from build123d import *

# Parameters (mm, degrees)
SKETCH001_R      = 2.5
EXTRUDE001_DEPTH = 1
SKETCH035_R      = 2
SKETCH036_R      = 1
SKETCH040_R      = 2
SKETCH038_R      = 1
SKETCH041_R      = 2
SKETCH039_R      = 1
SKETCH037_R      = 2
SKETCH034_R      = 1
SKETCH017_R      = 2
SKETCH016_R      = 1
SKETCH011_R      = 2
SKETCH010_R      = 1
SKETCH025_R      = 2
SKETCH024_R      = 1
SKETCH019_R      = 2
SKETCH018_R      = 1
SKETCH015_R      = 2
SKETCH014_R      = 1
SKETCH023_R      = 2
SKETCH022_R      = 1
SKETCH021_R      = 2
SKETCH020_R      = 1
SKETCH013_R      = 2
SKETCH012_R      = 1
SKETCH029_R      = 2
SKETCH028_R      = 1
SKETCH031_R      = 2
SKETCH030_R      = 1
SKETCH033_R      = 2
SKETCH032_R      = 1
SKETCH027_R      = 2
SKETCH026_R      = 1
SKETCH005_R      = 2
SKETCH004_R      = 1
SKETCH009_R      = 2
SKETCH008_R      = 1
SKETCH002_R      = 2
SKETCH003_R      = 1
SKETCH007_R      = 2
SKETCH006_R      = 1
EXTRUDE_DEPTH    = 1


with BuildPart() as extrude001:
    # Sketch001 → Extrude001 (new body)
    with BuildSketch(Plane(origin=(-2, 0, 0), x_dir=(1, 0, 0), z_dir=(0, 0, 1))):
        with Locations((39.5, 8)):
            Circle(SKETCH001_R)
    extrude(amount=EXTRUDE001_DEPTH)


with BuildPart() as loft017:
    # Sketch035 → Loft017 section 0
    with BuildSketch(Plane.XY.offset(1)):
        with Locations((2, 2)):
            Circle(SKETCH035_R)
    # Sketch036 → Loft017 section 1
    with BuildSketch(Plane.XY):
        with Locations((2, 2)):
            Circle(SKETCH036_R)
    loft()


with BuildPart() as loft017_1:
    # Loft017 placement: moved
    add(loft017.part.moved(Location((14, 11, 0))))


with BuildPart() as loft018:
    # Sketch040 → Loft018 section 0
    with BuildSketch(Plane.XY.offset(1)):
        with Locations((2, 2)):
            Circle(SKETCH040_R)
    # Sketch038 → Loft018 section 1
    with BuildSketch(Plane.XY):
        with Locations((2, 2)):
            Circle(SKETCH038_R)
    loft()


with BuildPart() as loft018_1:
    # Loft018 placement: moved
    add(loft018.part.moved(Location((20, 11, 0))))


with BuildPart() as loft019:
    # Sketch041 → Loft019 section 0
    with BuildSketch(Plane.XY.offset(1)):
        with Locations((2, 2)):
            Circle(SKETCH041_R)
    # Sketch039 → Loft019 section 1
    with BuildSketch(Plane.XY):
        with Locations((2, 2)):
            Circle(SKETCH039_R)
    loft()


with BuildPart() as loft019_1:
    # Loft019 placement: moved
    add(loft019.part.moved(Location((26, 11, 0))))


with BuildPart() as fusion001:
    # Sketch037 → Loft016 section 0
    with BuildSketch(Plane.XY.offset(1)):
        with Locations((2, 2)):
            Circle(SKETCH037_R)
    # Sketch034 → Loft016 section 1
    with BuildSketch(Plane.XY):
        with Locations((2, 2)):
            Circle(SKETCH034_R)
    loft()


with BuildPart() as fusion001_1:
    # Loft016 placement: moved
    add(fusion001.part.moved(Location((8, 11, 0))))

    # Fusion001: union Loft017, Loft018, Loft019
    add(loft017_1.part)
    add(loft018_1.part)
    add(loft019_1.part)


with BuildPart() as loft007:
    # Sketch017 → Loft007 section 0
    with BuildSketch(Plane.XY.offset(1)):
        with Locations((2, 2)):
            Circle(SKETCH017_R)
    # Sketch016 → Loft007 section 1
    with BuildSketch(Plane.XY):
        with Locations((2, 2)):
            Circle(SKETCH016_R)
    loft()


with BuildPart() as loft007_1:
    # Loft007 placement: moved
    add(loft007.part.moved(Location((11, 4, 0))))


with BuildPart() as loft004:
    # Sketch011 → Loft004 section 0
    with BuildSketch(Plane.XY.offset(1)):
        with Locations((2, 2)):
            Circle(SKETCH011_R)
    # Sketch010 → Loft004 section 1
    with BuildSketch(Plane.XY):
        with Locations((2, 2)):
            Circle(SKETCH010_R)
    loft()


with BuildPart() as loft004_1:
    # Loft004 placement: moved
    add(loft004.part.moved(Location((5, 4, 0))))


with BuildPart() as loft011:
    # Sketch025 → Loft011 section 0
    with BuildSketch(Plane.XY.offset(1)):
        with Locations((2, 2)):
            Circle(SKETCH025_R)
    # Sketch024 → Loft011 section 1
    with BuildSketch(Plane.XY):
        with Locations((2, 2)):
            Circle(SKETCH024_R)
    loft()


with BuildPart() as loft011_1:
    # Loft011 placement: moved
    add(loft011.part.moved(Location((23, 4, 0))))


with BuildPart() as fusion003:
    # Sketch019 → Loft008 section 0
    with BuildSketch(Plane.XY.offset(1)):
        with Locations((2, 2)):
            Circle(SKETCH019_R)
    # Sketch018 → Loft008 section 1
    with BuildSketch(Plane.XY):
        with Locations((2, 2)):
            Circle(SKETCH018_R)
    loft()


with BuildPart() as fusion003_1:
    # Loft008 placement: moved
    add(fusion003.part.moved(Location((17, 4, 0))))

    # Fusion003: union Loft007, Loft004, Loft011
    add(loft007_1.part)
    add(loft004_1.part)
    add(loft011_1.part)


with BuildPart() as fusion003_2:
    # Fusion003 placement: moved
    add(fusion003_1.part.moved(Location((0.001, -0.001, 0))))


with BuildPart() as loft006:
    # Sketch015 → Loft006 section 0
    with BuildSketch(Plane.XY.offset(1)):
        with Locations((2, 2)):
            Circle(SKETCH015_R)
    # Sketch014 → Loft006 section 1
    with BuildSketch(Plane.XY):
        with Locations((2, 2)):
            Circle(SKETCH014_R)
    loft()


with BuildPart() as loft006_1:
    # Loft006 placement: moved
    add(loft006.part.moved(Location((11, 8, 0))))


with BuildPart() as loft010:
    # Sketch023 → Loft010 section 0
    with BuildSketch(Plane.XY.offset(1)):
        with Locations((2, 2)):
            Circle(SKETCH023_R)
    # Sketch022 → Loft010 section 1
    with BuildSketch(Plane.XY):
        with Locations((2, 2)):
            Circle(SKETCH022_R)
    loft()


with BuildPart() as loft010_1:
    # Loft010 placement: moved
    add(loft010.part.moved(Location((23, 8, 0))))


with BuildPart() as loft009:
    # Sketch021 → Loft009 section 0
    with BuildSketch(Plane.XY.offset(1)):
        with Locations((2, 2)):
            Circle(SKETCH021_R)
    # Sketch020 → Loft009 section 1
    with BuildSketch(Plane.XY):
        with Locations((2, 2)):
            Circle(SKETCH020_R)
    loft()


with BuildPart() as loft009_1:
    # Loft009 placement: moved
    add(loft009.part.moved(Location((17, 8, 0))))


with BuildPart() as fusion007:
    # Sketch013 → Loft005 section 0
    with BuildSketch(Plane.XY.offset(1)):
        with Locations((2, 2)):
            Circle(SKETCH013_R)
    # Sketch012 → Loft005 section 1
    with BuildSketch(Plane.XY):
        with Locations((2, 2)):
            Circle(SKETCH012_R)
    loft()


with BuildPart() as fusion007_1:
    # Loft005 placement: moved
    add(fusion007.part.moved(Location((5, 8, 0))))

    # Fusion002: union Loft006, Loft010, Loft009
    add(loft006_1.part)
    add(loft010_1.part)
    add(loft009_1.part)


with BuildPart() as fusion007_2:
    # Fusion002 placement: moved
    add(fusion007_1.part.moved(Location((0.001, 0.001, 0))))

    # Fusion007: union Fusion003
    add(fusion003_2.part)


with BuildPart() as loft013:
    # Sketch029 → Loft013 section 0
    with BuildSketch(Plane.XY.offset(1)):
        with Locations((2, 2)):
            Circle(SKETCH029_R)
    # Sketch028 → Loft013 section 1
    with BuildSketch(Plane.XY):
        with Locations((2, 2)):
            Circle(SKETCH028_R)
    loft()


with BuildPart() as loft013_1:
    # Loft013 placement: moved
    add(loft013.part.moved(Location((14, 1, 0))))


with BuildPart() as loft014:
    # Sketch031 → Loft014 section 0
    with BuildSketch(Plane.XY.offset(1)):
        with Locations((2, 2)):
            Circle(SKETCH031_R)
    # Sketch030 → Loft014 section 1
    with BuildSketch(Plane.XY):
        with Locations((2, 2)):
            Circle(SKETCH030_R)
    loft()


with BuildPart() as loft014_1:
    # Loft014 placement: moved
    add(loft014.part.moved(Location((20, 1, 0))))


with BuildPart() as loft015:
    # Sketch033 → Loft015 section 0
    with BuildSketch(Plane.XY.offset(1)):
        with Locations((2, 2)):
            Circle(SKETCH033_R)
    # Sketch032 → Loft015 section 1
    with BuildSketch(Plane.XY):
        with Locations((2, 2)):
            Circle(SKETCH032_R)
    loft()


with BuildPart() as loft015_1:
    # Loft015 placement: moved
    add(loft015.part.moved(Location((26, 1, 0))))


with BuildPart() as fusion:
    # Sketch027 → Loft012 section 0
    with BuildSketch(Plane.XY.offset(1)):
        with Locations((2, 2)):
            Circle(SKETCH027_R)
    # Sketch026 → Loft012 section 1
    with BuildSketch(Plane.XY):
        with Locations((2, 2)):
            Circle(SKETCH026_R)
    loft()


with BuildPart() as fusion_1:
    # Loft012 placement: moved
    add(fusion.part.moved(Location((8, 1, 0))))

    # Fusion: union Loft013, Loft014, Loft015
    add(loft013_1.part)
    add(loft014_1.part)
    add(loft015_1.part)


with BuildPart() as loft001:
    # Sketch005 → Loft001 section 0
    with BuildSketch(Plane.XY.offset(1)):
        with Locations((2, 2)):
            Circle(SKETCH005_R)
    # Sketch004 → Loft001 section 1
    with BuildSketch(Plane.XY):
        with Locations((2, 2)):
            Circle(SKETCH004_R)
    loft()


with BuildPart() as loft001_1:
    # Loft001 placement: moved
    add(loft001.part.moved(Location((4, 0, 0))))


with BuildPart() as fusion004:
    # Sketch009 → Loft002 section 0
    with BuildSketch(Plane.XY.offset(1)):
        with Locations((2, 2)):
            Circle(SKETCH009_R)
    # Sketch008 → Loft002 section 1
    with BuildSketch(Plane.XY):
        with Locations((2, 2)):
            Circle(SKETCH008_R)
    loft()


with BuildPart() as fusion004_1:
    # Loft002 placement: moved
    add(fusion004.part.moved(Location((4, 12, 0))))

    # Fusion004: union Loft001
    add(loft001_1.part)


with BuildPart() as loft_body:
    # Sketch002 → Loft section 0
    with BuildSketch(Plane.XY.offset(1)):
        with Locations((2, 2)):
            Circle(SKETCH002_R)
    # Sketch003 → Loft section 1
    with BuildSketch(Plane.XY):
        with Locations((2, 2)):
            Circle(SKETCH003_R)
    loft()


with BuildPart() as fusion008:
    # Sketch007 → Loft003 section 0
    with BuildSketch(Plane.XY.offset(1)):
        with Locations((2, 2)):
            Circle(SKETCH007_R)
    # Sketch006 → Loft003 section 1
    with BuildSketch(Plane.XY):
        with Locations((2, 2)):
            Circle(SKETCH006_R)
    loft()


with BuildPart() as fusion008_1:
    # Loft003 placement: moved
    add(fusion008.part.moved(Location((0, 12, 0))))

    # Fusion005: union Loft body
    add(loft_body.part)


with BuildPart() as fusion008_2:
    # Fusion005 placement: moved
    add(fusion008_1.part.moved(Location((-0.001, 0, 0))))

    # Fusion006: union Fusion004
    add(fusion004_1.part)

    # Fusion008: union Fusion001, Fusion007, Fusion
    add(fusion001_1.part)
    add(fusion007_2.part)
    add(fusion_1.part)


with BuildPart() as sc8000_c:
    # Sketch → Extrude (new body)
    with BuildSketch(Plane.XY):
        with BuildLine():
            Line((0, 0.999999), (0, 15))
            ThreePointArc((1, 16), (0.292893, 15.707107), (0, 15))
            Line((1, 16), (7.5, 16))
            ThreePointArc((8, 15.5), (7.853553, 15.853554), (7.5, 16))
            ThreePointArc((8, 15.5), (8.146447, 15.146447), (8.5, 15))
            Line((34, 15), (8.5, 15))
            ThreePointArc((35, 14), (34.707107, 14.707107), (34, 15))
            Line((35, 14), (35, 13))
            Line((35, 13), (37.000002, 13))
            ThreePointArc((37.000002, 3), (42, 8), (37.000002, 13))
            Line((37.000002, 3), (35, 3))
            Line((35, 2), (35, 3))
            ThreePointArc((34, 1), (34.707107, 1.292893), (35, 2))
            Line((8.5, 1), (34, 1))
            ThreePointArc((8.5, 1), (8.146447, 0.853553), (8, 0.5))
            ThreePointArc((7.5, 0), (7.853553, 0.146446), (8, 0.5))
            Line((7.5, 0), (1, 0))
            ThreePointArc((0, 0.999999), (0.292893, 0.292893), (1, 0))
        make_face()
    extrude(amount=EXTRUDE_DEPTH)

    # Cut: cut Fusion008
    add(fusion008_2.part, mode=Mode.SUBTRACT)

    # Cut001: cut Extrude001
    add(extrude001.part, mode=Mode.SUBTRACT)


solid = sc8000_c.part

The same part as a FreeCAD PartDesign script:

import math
import FreeCAD as App
import Part
import Sketcher

V = App.Vector

doc = App.newDocument("Part")
params = doc.addObject("Spreadsheet::Sheet", "Params")
for row, (alias, value) in enumerate([
    ("sketch1_diameter", "5 mm"),
    ("pad1_length", "1 mm"),
    ("sketch2_diameter", "4 mm"),
    ("sketch3_diameter", "2 mm"),
    ("sketch4_diameter", "4 mm"),
    ("sketch5_diameter", "2 mm"),
    ("sketch6_diameter", "4 mm"),
    ("sketch7_diameter", "2 mm"),
    ("sketch8_diameter", "4 mm"),
    ("sketch9_diameter", "2 mm"),
    ("sketch10_diameter", "4 mm"),
    ("sketch11_diameter", "2 mm"),
    ("sketch12_diameter", "4 mm"),
    ("sketch13_diameter", "2 mm"),
    ("sketch14_diameter", "4 mm"),
    ("sketch15_diameter", "2 mm"),
    ("sketch16_diameter", "4 mm"),
    ("sketch17_diameter", "2 mm"),
    ("sketch18_diameter", "4 mm"),
    ("sketch19_diameter", "2 mm"),
    ("sketch20_diameter", "4 mm"),
    ("sketch21_diameter", "2 mm"),
    ("sketch22_diameter", "4 mm"),
    ("sketch23_diameter", "2 mm"),
    ("sketch24_diameter", "4 mm"),
    ("sketch25_diameter", "2 mm"),
    ("sketch26_diameter", "4 mm"),
    ("sketch27_diameter", "2 mm"),
    ("sketch28_diameter", "4 mm"),
    ("sketch29_diameter", "2 mm"),
    ("sketch30_diameter", "4 mm"),
    ("sketch31_diameter", "2 mm"),
    ("sketch32_diameter", "4 mm"),
    ("sketch33_diameter", "2 mm"),
    ("sketch34_diameter", "4 mm"),
    ("sketch35_diameter", "2 mm"),
    ("sketch36_diameter", "4 mm"),
    ("sketch37_diameter", "2 mm"),
    ("sketch38_diameter", "4 mm"),
    ("sketch39_diameter", "2 mm"),
    ("sketch40_diameter", "4 mm"),
    ("sketch41_diameter", "2 mm"),
    ("sketch42_radius", "0.999999 mm"),
    ("sketch42_radius2", "5 mm"),
    ("sketch42_height", "14.000001 mm"),
    ("sketch42_width", "6.5 mm"),
    ("sketch42_width2", "25.5 mm"),
    ("pad2_length", "1 mm"),
], start=1):
    params.set(f"A{row}", alias)
    params.set(f"B{row}", "=" + value)
    params.setAlias(f"B{row}", alias)

body = doc.addObject("PartDesign::Body", "Body")

sketch1 = body.newObject("Sketcher::SketchObject", "Sketch")
sketch1.AttachmentSupport = (doc.getObject("XY_Plane"), [""])
sketch1.MapMode = "FlatFace"
sketch1.addGeometry(Part.Circle(V(37.5, 8, 0), V(0, 0, 1), 2.5), False)
sketch1.addConstraint([
    Sketcher.Constraint("Diameter", 0, 5.0),
    Sketcher.Constraint("DistanceY", -1, 1, 0, 3, 8.0),
    Sketcher.Constraint("DistanceX", -1, 1, 0, 3, 37.5),
])
sketch1.setExpression("Constraints[0]", "Params.sketch1_diameter")
pad1 = body.newObject("PartDesign::Pad", "Pad")
pad1.Profile = sketch1
pad1.setExpression("Length", "Params.pad1_length")
body2 = doc.addObject("PartDesign::Body", "Body001")

sketch2 = body2.newObject("Sketcher::SketchObject", "Sketch001")
sketch2.AttachmentSupport = (doc.getObject("XY_Plane001"), [""])
sketch2.MapMode = "FlatFace"
sketch2.AttachmentOffset = App.Placement(V(0, 0, 1), App.Rotation())
sketch2.addGeometry(Part.Circle(V(2, 2, 0), V(0, 0, 1), 2), False)
sketch2.addConstraint([
    Sketcher.Constraint("Diameter", 0, 4.0),
    Sketcher.Constraint("DistanceX", -1, 1, 0, 3, 2.0),
    Sketcher.Constraint("DistanceY", -1, 1, 0, 3, 2.0),
])
sketch2.setExpression("Constraints[0]", "Params.sketch2_diameter")

sketch3 = body2.newObject("Sketcher::SketchObject", "Sketch002")
sketch3.AttachmentSupport = (doc.getObject("XY_Plane001"), [""])
sketch3.MapMode = "FlatFace"
sketch3.addGeometry(Part.Circle(V(2, 2, 0), V(0, 0, 1), 1), False)
sketch3.addConstraint([
    Sketcher.Constraint("Diameter", 0, 2.0),
    Sketcher.Constraint("DistanceX", -1, 1, 0, 3, 2.0),
    Sketcher.Constraint("DistanceY", -1, 1, 0, 3, 2.0),
])
sketch3.setExpression("Constraints[0]", "Params.sketch3_diameter")

additiveloft = body2.newObject("PartDesign::AdditiveLoft", "AdditiveLoft")
additiveloft.Profile = sketch2
additiveloft.Sections = [sketch3]
body3 = doc.addObject("PartDesign::Body", "Body002")
doc.recompute()

body2.Placement = App.Placement(V(14, 11, 0), App.Rotation(V(0, 0, 1), 0))
boolean = body3.newObject("PartDesign::Boolean", "Boolean")
boolean.Type = "Fuse"
boolean.addObjects([body2])
body4 = doc.addObject("PartDesign::Body", "Body003")

sketch4 = body4.newObject("Sketcher::SketchObject", "Sketch003")
sketch4.AttachmentSupport = (doc.getObject("XY_Plane003"), [""])
sketch4.MapMode = "FlatFace"
sketch4.AttachmentOffset = App.Placement(V(0, 0, 1), App.Rotation())
sketch4.addGeometry(Part.Circle(V(2, 2, 0), V(0, 0, 1), 2), False)
sketch4.addConstraint([
    Sketcher.Constraint("Diameter", 0, 4.0),
    Sketcher.Constraint("DistanceX", -1, 1, 0, 3, 2.0),
    Sketcher.Constraint("DistanceY", -1, 1, 0, 3, 2.0),
])
sketch4.setExpression("Constraints[0]", "Params.sketch4_diameter")

sketch5 = body4.newObject("Sketcher::SketchObject", "Sketch004")
sketch5.AttachmentSupport = (doc.getObject("XY_Plane003"), [""])
sketch5.MapMode = "FlatFace"
sketch5.addGeometry(Part.Circle(V(2, 2, 0), V(0, 0, 1), 1), False)
sketch5.addConstraint([
    Sketcher.Constraint("Diameter", 0, 2.0),
    Sketcher.Constraint("DistanceX", -1, 1, 0, 3, 2.0),
    Sketcher.Constraint("DistanceY", -1, 1, 0, 3, 2.0),
])
sketch5.setExpression("Constraints[0]", "Params.sketch5_diameter")

additiveloft2 = body4.newObject("PartDesign::AdditiveLoft", "AdditiveLoft001")
additiveloft2.Profile = sketch4
additiveloft2.Sections = [sketch5]
body5 = doc.addObject("PartDesign::Body", "Body004")
doc.recompute()

body4.Placement = App.Placement(V(20, 11, 0), App.Rotation(V(0, 0, 1), 0))
boolean2 = body5.newObject("PartDesign::Boolean", "Boolean001")
boolean2.Type = "Fuse"
boolean2.addObjects([body4])
body6 = doc.addObject("PartDesign::Body", "Body005")

sketch6 = body6.newObject("Sketcher::SketchObject", "Sketch005")
sketch6.AttachmentSupport = (doc.getObject("XY_Plane005"), [""])
sketch6.MapMode = "FlatFace"
sketch6.AttachmentOffset = App.Placement(V(0, 0, 1), App.Rotation())
sketch6.addGeometry(Part.Circle(V(2, 2, 0), V(0, 0, 1), 2), False)
sketch6.addConstraint([
    Sketcher.Constraint("Diameter", 0, 4.0),
    Sketcher.Constraint("DistanceX", -1, 1, 0, 3, 2.0),
    Sketcher.Constraint("DistanceY", -1, 1, 0, 3, 2.0),
])
sketch6.setExpression("Constraints[0]", "Params.sketch6_diameter")

sketch7 = body6.newObject("Sketcher::SketchObject", "Sketch006")
sketch7.AttachmentSupport = (doc.getObject("XY_Plane005"), [""])
sketch7.MapMode = "FlatFace"
sketch7.addGeometry(Part.Circle(V(2, 2, 0), V(0, 0, 1), 1), False)
sketch7.addConstraint([
    Sketcher.Constraint("Diameter", 0, 2.0),
    Sketcher.Constraint("DistanceX", -1, 1, 0, 3, 2.0),
    Sketcher.Constraint("DistanceY", -1, 1, 0, 3, 2.0),
])
sketch7.setExpression("Constraints[0]", "Params.sketch7_diameter")

additiveloft3 = body6.newObject("PartDesign::AdditiveLoft", "AdditiveLoft002")
additiveloft3.Profile = sketch6
additiveloft3.Sections = [sketch7]
body7 = doc.addObject("PartDesign::Body", "Body006")
doc.recompute()

body6.Placement = App.Placement(V(26, 11, 0), App.Rotation(V(0, 0, 1), 0))
boolean3 = body7.newObject("PartDesign::Boolean", "Boolean002")
boolean3.Type = "Fuse"
boolean3.addObjects([body6])
body8 = doc.addObject("PartDesign::Body", "Body007")

sketch8 = body8.newObject("Sketcher::SketchObject", "Sketch007")
sketch8.AttachmentSupport = (doc.getObject("XY_Plane007"), [""])
sketch8.MapMode = "FlatFace"
sketch8.AttachmentOffset = App.Placement(V(0, 0, 1), App.Rotation())
sketch8.addGeometry(Part.Circle(V(2, 2, 0), V(0, 0, 1), 2), False)
sketch8.addConstraint([
    Sketcher.Constraint("Diameter", 0, 4.0),
    Sketcher.Constraint("DistanceX", -1, 1, 0, 3, 2.0),
    Sketcher.Constraint("DistanceY", -1, 1, 0, 3, 2.0),
])
sketch8.setExpression("Constraints[0]", "Params.sketch8_diameter")

sketch9 = body8.newObject("Sketcher::SketchObject", "Sketch008")
sketch9.AttachmentSupport = (doc.getObject("XY_Plane007"), [""])
sketch9.MapMode = "FlatFace"
sketch9.addGeometry(Part.Circle(V(2, 2, 0), V(0, 0, 1), 1), False)
sketch9.addConstraint([
    Sketcher.Constraint("Diameter", 0, 2.0),
    Sketcher.Constraint("DistanceX", -1, 1, 0, 3, 2.0),
    Sketcher.Constraint("DistanceY", -1, 1, 0, 3, 2.0),
])
sketch9.setExpression("Constraints[0]", "Params.sketch9_diameter")

additiveloft4 = body8.newObject("PartDesign::AdditiveLoft", "AdditiveLoft003")
additiveloft4.Profile = sketch8
additiveloft4.Sections = [sketch9]
body9 = doc.addObject("PartDesign::Body", "Body008")
body9.AllowCompound = True
doc.recompute()

body8.Placement = App.Placement(V(8, 11, 0), App.Rotation(V(0, 0, 1), 0))
boolean4 = body9.newObject("PartDesign::Boolean", "Boolean003")
boolean4.Type = "Fuse"
boolean4.addObjects([body8])
doc.recompute()

boolean5 = body9.newObject("PartDesign::Boolean", "Boolean004")
boolean5.Type = "Fuse"
boolean5.addObjects([body3])
doc.recompute()

boolean6 = body9.newObject("PartDesign::Boolean", "Boolean005")
boolean6.Type = "Fuse"
boolean6.addObjects([body5])
doc.recompute()

boolean7 = body9.newObject("PartDesign::Boolean", "Boolean006")
boolean7.Type = "Fuse"
boolean7.addObjects([body7])
body10 = doc.addObject("PartDesign::Body", "Body009")

sketch10 = body10.newObject("Sketcher::SketchObject", "Sketch009")
sketch10.AttachmentSupport = (doc.getObject("XY_Plane009"), [""])
sketch10.MapMode = "FlatFace"
sketch10.AttachmentOffset = App.Placement(V(0, 0, 1), App.Rotation())
sketch10.addGeometry(Part.Circle(V(2, 2, 0), V(0, 0, 1), 2), False)
sketch10.addConstraint([
    Sketcher.Constraint("Diameter", 0, 4.0),
    Sketcher.Constraint("DistanceX", -1, 1, 0, 3, 2.0),
    Sketcher.Constraint("DistanceY", -1, 1, 0, 3, 2.0),
])
sketch10.setExpression("Constraints[0]", "Params.sketch10_diameter")

sketch11 = body10.newObject("Sketcher::SketchObject", "Sketch010")
sketch11.AttachmentSupport = (doc.getObject("XY_Plane009"), [""])
sketch11.MapMode = "FlatFace"
sketch11.addGeometry(Part.Circle(V(2, 2, 0), V(0, 0, 1), 1), False)
sketch11.addConstraint([
    Sketcher.Constraint("Diameter", 0, 2.0),
    Sketcher.Constraint("DistanceX", -1, 1, 0, 3, 2.0),
    Sketcher.Constraint("DistanceY", -1, 1, 0, 3, 2.0),
])
sketch11.setExpression("Constraints[0]", "Params.sketch11_diameter")

additiveloft5 = body10.newObject("PartDesign::AdditiveLoft", "AdditiveLoft004")
additiveloft5.Profile = sketch10
additiveloft5.Sections = [sketch11]
body11 = doc.addObject("PartDesign::Body", "Body010")
doc.recompute()

body10.Placement = App.Placement(V(11, 4, 0), App.Rotation(V(0, 0, 1), 0))
boolean8 = body11.newObject("PartDesign::Boolean", "Boolean007")
boolean8.Type = "Fuse"
boolean8.addObjects([body10])
body12 = doc.addObject("PartDesign::Body", "Body011")

sketch12 = body12.newObject("Sketcher::SketchObject", "Sketch011")
sketch12.AttachmentSupport = (doc.getObject("XY_Plane011"), [""])
sketch12.MapMode = "FlatFace"
sketch12.AttachmentOffset = App.Placement(V(0, 0, 1), App.Rotation())
sketch12.addGeometry(Part.Circle(V(2, 2, 0), V(0, 0, 1), 2), False)
sketch12.addConstraint([
    Sketcher.Constraint("Diameter", 0, 4.0),
    Sketcher.Constraint("DistanceX", -1, 1, 0, 3, 2.0),
    Sketcher.Constraint("DistanceY", -1, 1, 0, 3, 2.0),
])
sketch12.setExpression("Constraints[0]", "Params.sketch12_diameter")

sketch13 = body12.newObject("Sketcher::SketchObject", "Sketch012")
sketch13.AttachmentSupport = (doc.getObject("XY_Plane011"), [""])
sketch13.MapMode = "FlatFace"
sketch13.addGeometry(Part.Circle(V(2, 2, 0), V(0, 0, 1), 1), False)
sketch13.addConstraint([
    Sketcher.Constraint("Diameter", 0, 2.0),
    Sketcher.Constraint("DistanceX", -1, 1, 0, 3, 2.0),
    Sketcher.Constraint("DistanceY", -1, 1, 0, 3, 2.0),
])
sketch13.setExpression("Constraints[0]", "Params.sketch13_diameter")

additiveloft6 = body12.newObject("PartDesign::AdditiveLoft", "AdditiveLoft005")
additiveloft6.Profile = sketch12
additiveloft6.Sections = [sketch13]
body13 = doc.addObject("PartDesign::Body", "Body012")
doc.recompute()

body12.Placement = App.Placement(V(5, 4, 0), App.Rotation(V(0, 0, 1), 0))
boolean9 = body13.newObject("PartDesign::Boolean", "Boolean008")
boolean9.Type = "Fuse"
boolean9.addObjects([body12])
body14 = doc.addObject("PartDesign::Body", "Body013")

sketch14 = body14.newObject("Sketcher::SketchObject", "Sketch013")
sketch14.AttachmentSupport = (doc.getObject("XY_Plane013"), [""])
sketch14.MapMode = "FlatFace"
sketch14.AttachmentOffset = App.Placement(V(0, 0, 1), App.Rotation())
sketch14.addGeometry(Part.Circle(V(2, 2, 0), V(0, 0, 1), 2), False)
sketch14.addConstraint([
    Sketcher.Constraint("Diameter", 0, 4.0),
    Sketcher.Constraint("DistanceX", -1, 1, 0, 3, 2.0),
    Sketcher.Constraint("DistanceY", -1, 1, 0, 3, 2.0),
])
sketch14.setExpression("Constraints[0]", "Params.sketch14_diameter")

sketch15 = body14.newObject("Sketcher::SketchObject", "Sketch014")
sketch15.AttachmentSupport = (doc.getObject("XY_Plane013"), [""])
sketch15.MapMode = "FlatFace"
sketch15.addGeometry(Part.Circle(V(2, 2, 0), V(0, 0, 1), 1), False)
sketch15.addConstraint([
    Sketcher.Constraint("Diameter", 0, 2.0),
    Sketcher.Constraint("DistanceX", -1, 1, 0, 3, 2.0),
    Sketcher.Constraint("DistanceY", -1, 1, 0, 3, 2.0),
])
sketch15.setExpression("Constraints[0]", "Params.sketch15_diameter")

additiveloft7 = body14.newObject("PartDesign::AdditiveLoft", "AdditiveLoft006")
additiveloft7.Profile = sketch14
additiveloft7.Sections = [sketch15]
body15 = doc.addObject("PartDesign::Body", "Body014")
doc.recompute()

body14.Placement = App.Placement(V(23, 4, 0), App.Rotation(V(0, 0, 1), 0))
boolean10 = body15.newObject("PartDesign::Boolean", "Boolean009")
boolean10.Type = "Fuse"
boolean10.addObjects([body14])
body16 = doc.addObject("PartDesign::Body", "Body015")

sketch16 = body16.newObject("Sketcher::SketchObject", "Sketch015")
sketch16.AttachmentSupport = (doc.getObject("XY_Plane015"), [""])
sketch16.MapMode = "FlatFace"
sketch16.AttachmentOffset = App.Placement(V(0, 0, 1), App.Rotation())
sketch16.addGeometry(Part.Circle(V(2, 2, 0), V(0, 0, 1), 2), False)
sketch16.addConstraint([
    Sketcher.Constraint("Diameter", 0, 4.0),
    Sketcher.Constraint("DistanceX", -1, 1, 0, 3, 2.0),
    Sketcher.Constraint("DistanceY", -1, 1, 0, 3, 2.0),
])
sketch16.setExpression("Constraints[0]", "Params.sketch16_diameter")

sketch17 = body16.newObject("Sketcher::SketchObject", "Sketch016")
sketch17.AttachmentSupport = (doc.getObject("XY_Plane015"), [""])
sketch17.MapMode = "FlatFace"
sketch17.addGeometry(Part.Circle(V(2, 2, 0), V(0, 0, 1), 1), False)
sketch17.addConstraint([
    Sketcher.Constraint("Diameter", 0, 2.0),
    Sketcher.Constraint("DistanceX", -1, 1, 0, 3, 2.0),
    Sketcher.Constraint("DistanceY", -1, 1, 0, 3, 2.0),
])
sketch17.setExpression("Constraints[0]", "Params.sketch17_diameter")

additiveloft8 = body16.newObject("PartDesign::AdditiveLoft", "AdditiveLoft007")
additiveloft8.Profile = sketch16
additiveloft8.Sections = [sketch17]
body17 = doc.addObject("PartDesign::Body", "Body016")
body17.AllowCompound = True
doc.recompute()

body16.Placement = App.Placement(V(17, 4, 0), App.Rotation(V(0, 0, 1), 0))
boolean11 = body17.newObject("PartDesign::Boolean", "Boolean010")
boolean11.Type = "Fuse"
boolean11.addObjects([body16])
doc.recompute()

boolean12 = body17.newObject("PartDesign::Boolean", "Boolean011")
boolean12.Type = "Fuse"
boolean12.addObjects([body11])
doc.recompute()

boolean13 = body17.newObject("PartDesign::Boolean", "Boolean012")
boolean13.Type = "Fuse"
boolean13.addObjects([body13])
doc.recompute()

boolean14 = body17.newObject("PartDesign::Boolean", "Boolean013")
boolean14.Type = "Fuse"
boolean14.addObjects([body15])
body18 = doc.addObject("PartDesign::Body", "Body017")
body18.AllowCompound = True
doc.recompute()

body17.Placement = App.Placement(V(0.001, -0.001, 0), App.Rotation(V(0, 0, 1), 0))
boolean15 = body18.newObject("PartDesign::Boolean", "Boolean014")
boolean15.Type = "Fuse"
boolean15.addObjects([body17])
body19 = doc.addObject("PartDesign::Body", "Body018")

sketch18 = body19.newObject("Sketcher::SketchObject", "Sketch017")
sketch18.AttachmentSupport = (doc.getObject("XY_Plane018"), [""])
sketch18.MapMode = "FlatFace"
sketch18.AttachmentOffset = App.Placement(V(0, 0, 1), App.Rotation())
sketch18.addGeometry(Part.Circle(V(2, 2, 0), V(0, 0, 1), 2), False)
sketch18.addConstraint([
    Sketcher.Constraint("Diameter", 0, 4.0),
    Sketcher.Constraint("DistanceX", -1, 1, 0, 3, 2.0),
    Sketcher.Constraint("DistanceY", -1, 1, 0, 3, 2.0),
])
sketch18.setExpression("Constraints[0]", "Params.sketch18_diameter")

sketch19 = body19.newObject("Sketcher::SketchObject", "Sketch018")
sketch19.AttachmentSupport = (doc.getObject("XY_Plane018"), [""])
sketch19.MapMode = "FlatFace"
sketch19.addGeometry(Part.Circle(V(2, 2, 0), V(0, 0, 1), 1), False)
sketch19.addConstraint([
    Sketcher.Constraint("Diameter", 0, 2.0),
    Sketcher.Constraint("DistanceX", -1, 1, 0, 3, 2.0),
    Sketcher.Constraint("DistanceY", -1, 1, 0, 3, 2.0),
])
sketch19.setExpression("Constraints[0]", "Params.sketch19_diameter")

additiveloft9 = body19.newObject("PartDesign::AdditiveLoft", "AdditiveLoft008")
additiveloft9.Profile = sketch18
additiveloft9.Sections = [sketch19]
body20 = doc.addObject("PartDesign::Body", "Body019")
doc.recompute()

body19.Placement = App.Placement(V(11, 8, 0), App.Rotation(V(0, 0, 1), 0))
boolean16 = body20.newObject("PartDesign::Boolean", "Boolean015")
boolean16.Type = "Fuse"
boolean16.addObjects([body19])
body21 = doc.addObject("PartDesign::Body", "Body020")

sketch20 = body21.newObject("Sketcher::SketchObject", "Sketch019")
sketch20.AttachmentSupport = (doc.getObject("XY_Plane020"), [""])
sketch20.MapMode = "FlatFace"
sketch20.AttachmentOffset = App.Placement(V(0, 0, 1), App.Rotation())
sketch20.addGeometry(Part.Circle(V(2, 2, 0), V(0, 0, 1), 2), False)
sketch20.addConstraint([
    Sketcher.Constraint("Diameter", 0, 4.0),
    Sketcher.Constraint("DistanceX", -1, 1, 0, 3, 2.0),
    Sketcher.Constraint("DistanceY", -1, 1, 0, 3, 2.0),
])
sketch20.setExpression("Constraints[0]", "Params.sketch20_diameter")

sketch21 = body21.newObject("Sketcher::SketchObject", "Sketch020")
sketch21.AttachmentSupport = (doc.getObject("XY_Plane020"), [""])
sketch21.MapMode = "FlatFace"
sketch21.addGeometry(Part.Circle(V(2, 2, 0), V(0, 0, 1), 1), False)
sketch21.addConstraint([
    Sketcher.Constraint("Diameter", 0, 2.0),
    Sketcher.Constraint("DistanceX", -1, 1, 0, 3, 2.0),
    Sketcher.Constraint("DistanceY", -1, 1, 0, 3, 2.0),
])
sketch21.setExpression("Constraints[0]", "Params.sketch21_diameter")

additiveloft10 = body21.newObject("PartDesign::AdditiveLoft", "AdditiveLoft009")
additiveloft10.Profile = sketch20
additiveloft10.Sections = [sketch21]
body22 = doc.addObject("PartDesign::Body", "Body021")
doc.recompute()

body21.Placement = App.Placement(V(23, 8, 0), App.Rotation(V(0, 0, 1), 0))
boolean17 = body22.newObject("PartDesign::Boolean", "Boolean016")
boolean17.Type = "Fuse"
boolean17.addObjects([body21])
body23 = doc.addObject("PartDesign::Body", "Body022")

sketch22 = body23.newObject("Sketcher::SketchObject", "Sketch021")
sketch22.AttachmentSupport = (doc.getObject("XY_Plane022"), [""])
sketch22.MapMode = "FlatFace"
sketch22.AttachmentOffset = App.Placement(V(0, 0, 1), App.Rotation())
sketch22.addGeometry(Part.Circle(V(2, 2, 0), V(0, 0, 1), 2), False)
sketch22.addConstraint([
    Sketcher.Constraint("Diameter", 0, 4.0),
    Sketcher.Constraint("DistanceX", -1, 1, 0, 3, 2.0),
    Sketcher.Constraint("DistanceY", -1, 1, 0, 3, 2.0),
])
sketch22.setExpression("Constraints[0]", "Params.sketch22_diameter")

sketch23 = body23.newObject("Sketcher::SketchObject", "Sketch022")
sketch23.AttachmentSupport = (doc.getObject("XY_Plane022"), [""])
sketch23.MapMode = "FlatFace"
sketch23.addGeometry(Part.Circle(V(2, 2, 0), V(0, 0, 1), 1), False)
sketch23.addConstraint([
    Sketcher.Constraint("Diameter", 0, 2.0),
    Sketcher.Constraint("DistanceX", -1, 1, 0, 3, 2.0),
    Sketcher.Constraint("DistanceY", -1, 1, 0, 3, 2.0),
])
sketch23.setExpression("Constraints[0]", "Params.sketch23_diameter")

additiveloft11 = body23.newObject("PartDesign::AdditiveLoft", "AdditiveLoft010")
additiveloft11.Profile = sketch22
additiveloft11.Sections = [sketch23]
body24 = doc.addObject("PartDesign::Body", "Body023")
doc.recompute()

body23.Placement = App.Placement(V(17, 8, 0), App.Rotation(V(0, 0, 1), 0))
boolean18 = body24.newObject("PartDesign::Boolean", "Boolean017")
boolean18.Type = "Fuse"
boolean18.addObjects([body23])
body25 = doc.addObject("PartDesign::Body", "Body024")

sketch24 = body25.newObject("Sketcher::SketchObject", "Sketch023")
sketch24.AttachmentSupport = (doc.getObject("XY_Plane024"), [""])
sketch24.MapMode = "FlatFace"
sketch24.AttachmentOffset = App.Placement(V(0, 0, 1), App.Rotation())
sketch24.addGeometry(Part.Circle(V(2, 2, 0), V(0, 0, 1), 2), False)
sketch24.addConstraint([
    Sketcher.Constraint("Diameter", 0, 4.0),
    Sketcher.Constraint("DistanceX", -1, 1, 0, 3, 2.0),
    Sketcher.Constraint("DistanceY", -1, 1, 0, 3, 2.0),
])
sketch24.setExpression("Constraints[0]", "Params.sketch24_diameter")

sketch25 = body25.newObject("Sketcher::SketchObject", "Sketch024")
sketch25.AttachmentSupport = (doc.getObject("XY_Plane024"), [""])
sketch25.MapMode = "FlatFace"
sketch25.addGeometry(Part.Circle(V(2, 2, 0), V(0, 0, 1), 1), False)
sketch25.addConstraint([
    Sketcher.Constraint("Diameter", 0, 2.0),
    Sketcher.Constraint("DistanceX", -1, 1, 0, 3, 2.0),
    Sketcher.Constraint("DistanceY", -1, 1, 0, 3, 2.0),
])
sketch25.setExpression("Constraints[0]", "Params.sketch25_diameter")

additiveloft12 = body25.newObject("PartDesign::AdditiveLoft", "AdditiveLoft011")
additiveloft12.Profile = sketch24
additiveloft12.Sections = [sketch25]
body26 = doc.addObject("PartDesign::Body", "Body025")
body26.AllowCompound = True
doc.recompute()

body25.Placement = App.Placement(V(5, 8, 0), App.Rotation(V(0, 0, 1), 0))
boolean19 = body26.newObject("PartDesign::Boolean", "Boolean018")
boolean19.Type = "Fuse"
boolean19.addObjects([body25])
doc.recompute()

boolean20 = body26.newObject("PartDesign::Boolean", "Boolean019")
boolean20.Type = "Fuse"
boolean20.addObjects([body20])
doc.recompute()

boolean21 = body26.newObject("PartDesign::Boolean", "Boolean020")
boolean21.Type = "Fuse"
boolean21.addObjects([body22])
doc.recompute()

boolean22 = body26.newObject("PartDesign::Boolean", "Boolean021")
boolean22.Type = "Fuse"
boolean22.addObjects([body24])
body27 = doc.addObject("PartDesign::Body", "Body026")
body27.AllowCompound = True
doc.recompute()

body26.Placement = App.Placement(V(0.001, 0.001, 0), App.Rotation(V(0, 0, 1), 0))
boolean23 = body27.newObject("PartDesign::Boolean", "Boolean022")
boolean23.Type = "Fuse"
boolean23.addObjects([body26])
doc.recompute()

boolean24 = body27.newObject("PartDesign::Boolean", "Boolean023")
boolean24.Type = "Fuse"
boolean24.addObjects([body18])
body28 = doc.addObject("PartDesign::Body", "Body027")

sketch26 = body28.newObject("Sketcher::SketchObject", "Sketch025")
sketch26.AttachmentSupport = (doc.getObject("XY_Plane027"), [""])
sketch26.MapMode = "FlatFace"
sketch26.AttachmentOffset = App.Placement(V(0, 0, 1), App.Rotation())
sketch26.addGeometry(Part.Circle(V(2, 2, 0), V(0, 0, 1), 2), False)
sketch26.addConstraint([
    Sketcher.Constraint("Diameter", 0, 4.0),
    Sketcher.Constraint("DistanceX", -1, 1, 0, 3, 2.0),
    Sketcher.Constraint("DistanceY", -1, 1, 0, 3, 2.0),
])
sketch26.setExpression("Constraints[0]", "Params.sketch26_diameter")

sketch27 = body28.newObject("Sketcher::SketchObject", "Sketch026")
sketch27.AttachmentSupport = (doc.getObject("XY_Plane027"), [""])
sketch27.MapMode = "FlatFace"
sketch27.addGeometry(Part.Circle(V(2, 2, 0), V(0, 0, 1), 1), False)
sketch27.addConstraint([
    Sketcher.Constraint("Diameter", 0, 2.0),
    Sketcher.Constraint("DistanceX", -1, 1, 0, 3, 2.0),
    Sketcher.Constraint("DistanceY", -1, 1, 0, 3, 2.0),
])
sketch27.setExpression("Constraints[0]", "Params.sketch27_diameter")

additiveloft13 = body28.newObject("PartDesign::AdditiveLoft", "AdditiveLoft012")
additiveloft13.Profile = sketch26
additiveloft13.Sections = [sketch27]
body29 = doc.addObject("PartDesign::Body", "Body028")
doc.recompute()

body28.Placement = App.Placement(V(14, 1, 0), App.Rotation(V(0, 0, 1), 0))
boolean25 = body29.newObject("PartDesign::Boolean", "Boolean024")
boolean25.Type = "Fuse"
boolean25.addObjects([body28])
body30 = doc.addObject("PartDesign::Body", "Body029")

sketch28 = body30.newObject("Sketcher::SketchObject", "Sketch027")
sketch28.AttachmentSupport = (doc.getObject("XY_Plane029"), [""])
sketch28.MapMode = "FlatFace"
sketch28.AttachmentOffset = App.Placement(V(0, 0, 1), App.Rotation())
sketch28.addGeometry(Part.Circle(V(2, 2, 0), V(0, 0, 1), 2), False)
sketch28.addConstraint([
    Sketcher.Constraint("Diameter", 0, 4.0),
    Sketcher.Constraint("DistanceX", -1, 1, 0, 3, 2.0),
    Sketcher.Constraint("DistanceY", -1, 1, 0, 3, 2.0),
])
sketch28.setExpression("Constraints[0]", "Params.sketch28_diameter")

sketch29 = body30.newObject("Sketcher::SketchObject", "Sketch028")
sketch29.AttachmentSupport = (doc.getObject("XY_Plane029"), [""])
sketch29.MapMode = "FlatFace"
sketch29.addGeometry(Part.Circle(V(2, 2, 0), V(0, 0, 1), 1), False)
sketch29.addConstraint([
    Sketcher.Constraint("Diameter", 0, 2.0),
    Sketcher.Constraint("DistanceX", -1, 1, 0, 3, 2.0),
    Sketcher.Constraint("DistanceY", -1, 1, 0, 3, 2.0),
])
sketch29.setExpression("Constraints[0]", "Params.sketch29_diameter")

additiveloft14 = body30.newObject("PartDesign::AdditiveLoft", "AdditiveLoft013")
additiveloft14.Profile = sketch28
additiveloft14.Sections = [sketch29]
body31 = doc.addObject("PartDesign::Body", "Body030")
doc.recompute()

body30.Placement = App.Placement(V(20, 1, 0), App.Rotation(V(0, 0, 1), 0))
boolean26 = body31.newObject("PartDesign::Boolean", "Boolean025")
boolean26.Type = "Fuse"
boolean26.addObjects([body30])
body32 = doc.addObject("PartDesign::Body", "Body031")

sketch30 = body32.newObject("Sketcher::SketchObject", "Sketch029")
sketch30.AttachmentSupport = (doc.getObject("XY_Plane031"), [""])
sketch30.MapMode = "FlatFace"
sketch30.AttachmentOffset = App.Placement(V(0, 0, 1), App.Rotation())
sketch30.addGeometry(Part.Circle(V(2, 2, 0), V(0, 0, 1), 2), False)
sketch30.addConstraint([
    Sketcher.Constraint("Diameter", 0, 4.0),
    Sketcher.Constraint("DistanceX", -1, 1, 0, 3, 2.0),
    Sketcher.Constraint("DistanceY", -1, 1, 0, 3, 2.0),
])
sketch30.setExpression("Constraints[0]", "Params.sketch30_diameter")

sketch31 = body32.newObject("Sketcher::SketchObject", "Sketch030")
sketch31.AttachmentSupport = (doc.getObject("XY_Plane031"), [""])
sketch31.MapMode = "FlatFace"
sketch31.addGeometry(Part.Circle(V(2, 2, 0), V(0, 0, 1), 1), False)
sketch31.addConstraint([
    Sketcher.Constraint("Diameter", 0, 2.0),
    Sketcher.Constraint("DistanceX", -1, 1, 0, 3, 2.0),
    Sketcher.Constraint("DistanceY", -1, 1, 0, 3, 2.0),
])
sketch31.setExpression("Constraints[0]", "Params.sketch31_diameter")

additiveloft15 = body32.newObject("PartDesign::AdditiveLoft", "AdditiveLoft014")
additiveloft15.Profile = sketch30
additiveloft15.Sections = [sketch31]
body33 = doc.addObject("PartDesign::Body", "Body032")
doc.recompute()

body32.Placement = App.Placement(V(26, 1, 0), App.Rotation(V(0, 0, 1), 0))
boolean27 = body33.newObject("PartDesign::Boolean", "Boolean026")
boolean27.Type = "Fuse"
boolean27.addObjects([body32])
body34 = doc.addObject("PartDesign::Body", "Body033")

sketch32 = body34.newObject("Sketcher::SketchObject", "Sketch031")
sketch32.AttachmentSupport = (doc.getObject("XY_Plane033"), [""])
sketch32.MapMode = "FlatFace"
sketch32.AttachmentOffset = App.Placement(V(0, 0, 1), App.Rotation())
sketch32.addGeometry(Part.Circle(V(2, 2, 0), V(0, 0, 1), 2), False)
sketch32.addConstraint([
    Sketcher.Constraint("Diameter", 0, 4.0),
    Sketcher.Constraint("DistanceX", -1, 1, 0, 3, 2.0),
    Sketcher.Constraint("DistanceY", -1, 1, 0, 3, 2.0),
])
sketch32.setExpression("Constraints[0]", "Params.sketch32_diameter")

sketch33 = body34.newObject("Sketcher::SketchObject", "Sketch032")
sketch33.AttachmentSupport = (doc.getObject("XY_Plane033"), [""])
sketch33.MapMode = "FlatFace"
sketch33.addGeometry(Part.Circle(V(2, 2, 0), V(0, 0, 1), 1), False)
sketch33.addConstraint([
    Sketcher.Constraint("Diameter", 0, 2.0),
    Sketcher.Constraint("DistanceX", -1, 1, 0, 3, 2.0),
    Sketcher.Constraint("DistanceY", -1, 1, 0, 3, 2.0),
])
sketch33.setExpression("Constraints[0]", "Params.sketch33_diameter")

additiveloft16 = body34.newObject("PartDesign::AdditiveLoft", "AdditiveLoft015")
additiveloft16.Profile = sketch32
additiveloft16.Sections = [sketch33]
body35 = doc.addObject("PartDesign::Body", "Body034")
body35.AllowCompound = True
doc.recompute()

body34.Placement = App.Placement(V(8, 1, 0), App.Rotation(V(0, 0, 1), 0))
boolean28 = body35.newObject("PartDesign::Boolean", "Boolean027")
boolean28.Type = "Fuse"
boolean28.addObjects([body34])
doc.recompute()

boolean29 = body35.newObject("PartDesign::Boolean", "Boolean028")
boolean29.Type = "Fuse"
boolean29.addObjects([body29])
doc.recompute()

boolean30 = body35.newObject("PartDesign::Boolean", "Boolean029")
boolean30.Type = "Fuse"
boolean30.addObjects([body31])
doc.recompute()

boolean31 = body35.newObject("PartDesign::Boolean", "Boolean030")
boolean31.Type = "Fuse"
boolean31.addObjects([body33])
body36 = doc.addObject("PartDesign::Body", "Body035")

sketch34 = body36.newObject("Sketcher::SketchObject", "Sketch033")
sketch34.AttachmentSupport = (doc.getObject("XY_Plane035"), [""])
sketch34.MapMode = "FlatFace"
sketch34.AttachmentOffset = App.Placement(V(0, 0, 1), App.Rotation())
sketch34.addGeometry(Part.Circle(V(2, 2, 0), V(0, 0, 1), 2), False)
sketch34.addConstraint([
    Sketcher.Constraint("Diameter", 0, 4.0),
    Sketcher.Constraint("DistanceX", -1, 1, 0, 3, 2.0),
    Sketcher.Constraint("DistanceY", -1, 1, 0, 3, 2.0),
])
sketch34.setExpression("Constraints[0]", "Params.sketch34_diameter")

sketch35 = body36.newObject("Sketcher::SketchObject", "Sketch034")
sketch35.AttachmentSupport = (doc.getObject("XY_Plane035"), [""])
sketch35.MapMode = "FlatFace"
sketch35.addGeometry(Part.Circle(V(2, 2, 0), V(0, 0, 1), 1), False)
sketch35.addConstraint([
    Sketcher.Constraint("Diameter", 0, 2.0),
    Sketcher.Constraint("DistanceX", -1, 1, 0, 3, 2.0),
    Sketcher.Constraint("DistanceY", -1, 1, 0, 3, 2.0),
])
sketch35.setExpression("Constraints[0]", "Params.sketch35_diameter")

additiveloft17 = body36.newObject("PartDesign::AdditiveLoft", "AdditiveLoft016")
additiveloft17.Profile = sketch34
additiveloft17.Sections = [sketch35]
body37 = doc.addObject("PartDesign::Body", "Body036")
doc.recompute()

body36.Placement = App.Placement(V(4, 0, 0), App.Rotation(V(0, 0, 1), 0))
boolean32 = body37.newObject("PartDesign::Boolean", "Boolean031")
boolean32.Type = "Fuse"
boolean32.addObjects([body36])
body38 = doc.addObject("PartDesign::Body", "Body037")

sketch36 = body38.newObject("Sketcher::SketchObject", "Sketch035")
sketch36.AttachmentSupport = (doc.getObject("XY_Plane037"), [""])
sketch36.MapMode = "FlatFace"
sketch36.AttachmentOffset = App.Placement(V(0, 0, 1), App.Rotation())
sketch36.addGeometry(Part.Circle(V(2, 2, 0), V(0, 0, 1), 2), False)
sketch36.addConstraint([
    Sketcher.Constraint("Diameter", 0, 4.0),
    Sketcher.Constraint("DistanceX", -1, 1, 0, 3, 2.0),
    Sketcher.Constraint("DistanceY", -1, 1, 0, 3, 2.0),
])
sketch36.setExpression("Constraints[0]", "Params.sketch36_diameter")

sketch37 = body38.newObject("Sketcher::SketchObject", "Sketch036")
sketch37.AttachmentSupport = (doc.getObject("XY_Plane037"), [""])
sketch37.MapMode = "FlatFace"
sketch37.addGeometry(Part.Circle(V(2, 2, 0), V(0, 0, 1), 1), False)
sketch37.addConstraint([
    Sketcher.Constraint("Diameter", 0, 2.0),
    Sketcher.Constraint("DistanceX", -1, 1, 0, 3, 2.0),
    Sketcher.Constraint("DistanceY", -1, 1, 0, 3, 2.0),
])
sketch37.setExpression("Constraints[0]", "Params.sketch37_diameter")

additiveloft18 = body38.newObject("PartDesign::AdditiveLoft", "AdditiveLoft017")
additiveloft18.Profile = sketch36
additiveloft18.Sections = [sketch37]
body39 = doc.addObject("PartDesign::Body", "Body038")
body39.AllowCompound = True
doc.recompute()

body38.Placement = App.Placement(V(4, 12, 0), App.Rotation(V(0, 0, 1), 0))
boolean33 = body39.newObject("PartDesign::Boolean", "Boolean032")
boolean33.Type = "Fuse"
boolean33.addObjects([body38])
doc.recompute()

boolean34 = body39.newObject("PartDesign::Boolean", "Boolean033")
boolean34.Type = "Fuse"
boolean34.addObjects([body37])
body40 = doc.addObject("PartDesign::Body", "Body039")

sketch38 = body40.newObject("Sketcher::SketchObject", "Sketch037")
sketch38.AttachmentSupport = (doc.getObject("XY_Plane039"), [""])
sketch38.MapMode = "FlatFace"
sketch38.AttachmentOffset = App.Placement(V(0, 0, 1), App.Rotation())
sketch38.addGeometry(Part.Circle(V(2, 2, 0), V(0, 0, 1), 2), False)
sketch38.addConstraint([
    Sketcher.Constraint("Diameter", 0, 4.0),
    Sketcher.Constraint("DistanceX", -1, 1, 0, 3, 2.0),
    Sketcher.Constraint("DistanceY", -1, 1, 0, 3, 2.0),
])
sketch38.setExpression("Constraints[0]", "Params.sketch38_diameter")

sketch39 = body40.newObject("Sketcher::SketchObject", "Sketch038")
sketch39.AttachmentSupport = (doc.getObject("XY_Plane039"), [""])
sketch39.MapMode = "FlatFace"
sketch39.addGeometry(Part.Circle(V(2, 2, 0), V(0, 0, 1), 1), False)
sketch39.addConstraint([
    Sketcher.Constraint("Diameter", 0, 2.0),
    Sketcher.Constraint("DistanceX", -1, 1, 0, 3, 2.0),
    Sketcher.Constraint("DistanceY", -1, 1, 0, 3, 2.0),
])
sketch39.setExpression("Constraints[0]", "Params.sketch39_diameter")

additiveloft19 = body40.newObject("PartDesign::AdditiveLoft", "AdditiveLoft018")
additiveloft19.Profile = sketch38
additiveloft19.Sections = [sketch39]
body41 = doc.addObject("PartDesign::Body", "Body040")

sketch40 = body41.newObject("Sketcher::SketchObject", "Sketch039")
sketch40.AttachmentSupport = (doc.getObject("XY_Plane040"), [""])
sketch40.MapMode = "FlatFace"
sketch40.AttachmentOffset = App.Placement(V(0, 0, 1), App.Rotation())
sketch40.addGeometry(Part.Circle(V(2, 2, 0), V(0, 0, 1), 2), False)
sketch40.addConstraint([
    Sketcher.Constraint("Diameter", 0, 4.0),
    Sketcher.Constraint("DistanceX", -1, 1, 0, 3, 2.0),
    Sketcher.Constraint("DistanceY", -1, 1, 0, 3, 2.0),
])
sketch40.setExpression("Constraints[0]", "Params.sketch40_diameter")

sketch41 = body41.newObject("Sketcher::SketchObject", "Sketch040")
sketch41.AttachmentSupport = (doc.getObject("XY_Plane040"), [""])
sketch41.MapMode = "FlatFace"
sketch41.addGeometry(Part.Circle(V(2, 2, 0), V(0, 0, 1), 1), False)
sketch41.addConstraint([
    Sketcher.Constraint("Diameter", 0, 2.0),
    Sketcher.Constraint("DistanceX", -1, 1, 0, 3, 2.0),
    Sketcher.Constraint("DistanceY", -1, 1, 0, 3, 2.0),
])
sketch41.setExpression("Constraints[0]", "Params.sketch41_diameter")

additiveloft20 = body41.newObject("PartDesign::AdditiveLoft", "AdditiveLoft019")
additiveloft20.Profile = sketch40
additiveloft20.Sections = [sketch41]
body42 = doc.addObject("PartDesign::Body", "Body041")
body42.AllowCompound = True
doc.recompute()

body41.Placement = App.Placement(V(0, 12, 0), App.Rotation(V(0, 0, 1), 0))
boolean35 = body42.newObject("PartDesign::Boolean", "Boolean034")
boolean35.Type = "Fuse"
boolean35.addObjects([body41])
doc.recompute()

boolean36 = body42.newObject("PartDesign::Boolean", "Boolean035")
boolean36.Type = "Fuse"
boolean36.addObjects([body40])
body43 = doc.addObject("PartDesign::Body", "Body042")
body43.AllowCompound = True
doc.recompute()

body42.Placement = App.Placement(V(-0.001, 0, 0), App.Rotation(V(0, 0, 1), 0))
boolean37 = body43.newObject("PartDesign::Boolean", "Boolean036")
boolean37.Type = "Fuse"
boolean37.addObjects([body42])
doc.recompute()

boolean38 = body43.newObject("PartDesign::Boolean", "Boolean037")
boolean38.Type = "Fuse"
boolean38.addObjects([body39])
doc.recompute()

boolean39 = body43.newObject("PartDesign::Boolean", "Boolean038")
boolean39.Type = "Fuse"
boolean39.addObjects([body9])
doc.recompute()

boolean40 = body43.newObject("PartDesign::Boolean", "Boolean039")
boolean40.Type = "Fuse"
boolean40.addObjects([body27])
doc.recompute()

boolean41 = body43.newObject("PartDesign::Boolean", "Boolean040")
boolean41.Type = "Fuse"
boolean41.addObjects([body35])
body44 = doc.addObject("PartDesign::Body", "Body043")

sketch42 = body44.newObject("Sketcher::SketchObject", "Sketch041")
sketch42.AttachmentSupport = (doc.getObject("XY_Plane043"), [""])
sketch42.MapMode = "FlatFace"
sketch42.addGeometry([
    Part.LineSegment(V(0, 15, 0), V(0, 1, 0)),
    Part.ArcOfCircle(Part.Circle(V(1, 1, 0), V(0, 0, 1), 1), math.radians(-180), math.radians(-90)),
    Part.LineSegment(V(1, 0, 0), V(7.5, 0, 0)),
    Part.ArcOfCircle(Part.Circle(V(7.5, 0.5, 0), V(0, 0, 1), 0.5), math.radians(-90), math.radians(0)),
    Part.ArcOfCircle(Part.Circle(V(8.5, 0.5, 0), V(0, 0, 1), 0.5), math.radians(90), math.radians(180)),
    Part.LineSegment(V(8.5, 1, 0), V(34, 1, 0)),
    Part.ArcOfCircle(Part.Circle(V(34, 2, 0), V(0, 0, 1), 1), math.radians(-90), math.radians(0)),
    Part.LineSegment(V(35, 2, 0), V(35, 3, 0)),
    Part.LineSegment(V(35, 3, 0), V(37, 3, 0)),
    Part.ArcOfCircle(Part.Circle(V(37, 8, 0), V(0, 0, 1), 5), math.radians(-90), math.radians(90)),
    Part.LineSegment(V(37, 13, 0), V(35, 13, 0)),
    Part.LineSegment(V(35, 13, 0), V(35, 14, 0)),
    Part.ArcOfCircle(Part.Circle(V(34, 14, 0), V(0, 0, 1), 1), math.radians(0), math.radians(90)),
    Part.LineSegment(V(34, 15, 0), V(8.5, 15, 0)),
    Part.ArcOfCircle(Part.Circle(V(8.5, 15.5, 0), V(0, 0, 1), 0.5), math.radians(-180), math.radians(-90)),
    Part.ArcOfCircle(Part.Circle(V(7.5, 15.5, 0), V(0, 0, 1), 0.5), math.radians(0), math.radians(90)),
    Part.LineSegment(V(7.5, 16, 0), V(1, 16, 0)),
    Part.ArcOfCircle(Part.Circle(V(1, 15, 0), V(0, 0, 1), 1), math.radians(90), math.radians(180)),
], False)
sketch42.addConstraint([
    Sketcher.Constraint("Tangent", 0, 2, 1, 1),
    Sketcher.Constraint("Tangent", 1, 2, 2, 1),
    Sketcher.Constraint("Tangent", 2, 2, 3, 1),
    Sketcher.Constraint("Coincident", 3, 2, 4, 2),
    Sketcher.Constraint("Coincident", 4, 1, 5, 1),
    Sketcher.Constraint("Tangent", 5, 2, 6, 1),
    Sketcher.Constraint("Tangent", 6, 2, 7, 1),
    Sketcher.Constraint("Coincident", 7, 2, 8, 1),
    Sketcher.Constraint("Tangent", 8, 2, 9, 1),
    Sketcher.Constraint("Tangent", 9, 2, 10, 1),
    Sketcher.Constraint("Coincident", 10, 2, 11, 1),
    Sketcher.Constraint("Tangent", 11, 2, 12, 1),
    Sketcher.Constraint("Tangent", 12, 2, 13, 1),
    Sketcher.Constraint("Coincident", 13, 2, 14, 2),
    Sketcher.Constraint("Coincident", 14, 1, 15, 1),
    Sketcher.Constraint("Tangent", 15, 2, 16, 1),
    Sketcher.Constraint("Tangent", 16, 2, 17, 1),
    Sketcher.Constraint("Tangent", 17, 2, 0, 1),
    Sketcher.Constraint("Vertical", 0),
    Sketcher.Constraint("Horizontal", 2),
    Sketcher.Constraint("Horizontal", 5),
    Sketcher.Constraint("Vertical", 7),
    Sketcher.Constraint("Horizontal", 8),
    Sketcher.Constraint("Horizontal", 10),
    Sketcher.Constraint("Vertical", 11),
    Sketcher.Constraint("Horizontal", 13),
    Sketcher.Constraint("Horizontal", 16),
    Sketcher.Constraint("Equal", 3, 4),
    Sketcher.Constraint("Equal", 1, 6),
    Sketcher.Constraint("Equal", 6, 12),
    Sketcher.Constraint("Equal", 4, 14),
    Sketcher.Constraint("Equal", 14, 15),
    Sketcher.Constraint("Equal", 12, 17),
    Sketcher.Constraint("PointOnObject", 0, 2, -2),
    Sketcher.Constraint("PointOnObject", 1, 2, -1),
    Sketcher.Constraint("Horizontal", 3, 3, 4, 3),
    Sketcher.Constraint("Horizontal", 14, 3, 15, 3),
    Sketcher.Constraint("Horizontal", 4, 3, 3, 2),
    Sketcher.Constraint("Horizontal", 0, 2, 4, 1),
    Sketcher.Constraint("Horizontal", 15, 3, 14, 1),
    Sketcher.Constraint("Vertical", 6, 3, 12, 3),
    Sketcher.Constraint("Vertical", 4, 3, 14, 3),
    Sketcher.Constraint("Vertical", 14, 3, 4, 1),
    Sketcher.Constraint("Vertical", 4, 1, 13, 2),
    Sketcher.Constraint("Equal", 7, 11),
    Sketcher.Constraint("Radius", 1, 0.999999),
    Sketcher.Constraint("Radius", 9, 5.0),
    Sketcher.Constraint("DistanceY", 0, 2, 0, 1, 14.000001),
    Sketcher.Constraint("DistanceX", 2, 1, 2, 2, 6.5),
    Sketcher.Constraint("DistanceX", 5, 1, 5, 2, 25.5),
    Sketcher.Constraint("DistanceX", -1, 1, 9, 3, 37.0),
])
sketch42.setExpression("Constraints[45]", "Params.sketch42_radius")
sketch42.setExpression("Constraints[46]", "Params.sketch42_radius2")
sketch42.setExpression("Constraints[47]", "Params.sketch42_height")
sketch42.setExpression("Constraints[48]", "Params.sketch42_width")
sketch42.setExpression("Constraints[49]", "Params.sketch42_width2")
pad2 = body44.newObject("PartDesign::Pad", "Pad001")
pad2.Profile = sketch42
pad2.setExpression("Length", "Params.pad2_length")
doc.recompute()

boolean42 = body44.newObject("PartDesign::Boolean", "Boolean041")
boolean42.Type = "Cut"
boolean42.addObjects([body43])
doc.recompute()

boolean43 = body44.newObject("PartDesign::Boolean", "Boolean042")
boolean43.Type = "Cut"
boolean43.addObjects([body])

doc.recompute()
